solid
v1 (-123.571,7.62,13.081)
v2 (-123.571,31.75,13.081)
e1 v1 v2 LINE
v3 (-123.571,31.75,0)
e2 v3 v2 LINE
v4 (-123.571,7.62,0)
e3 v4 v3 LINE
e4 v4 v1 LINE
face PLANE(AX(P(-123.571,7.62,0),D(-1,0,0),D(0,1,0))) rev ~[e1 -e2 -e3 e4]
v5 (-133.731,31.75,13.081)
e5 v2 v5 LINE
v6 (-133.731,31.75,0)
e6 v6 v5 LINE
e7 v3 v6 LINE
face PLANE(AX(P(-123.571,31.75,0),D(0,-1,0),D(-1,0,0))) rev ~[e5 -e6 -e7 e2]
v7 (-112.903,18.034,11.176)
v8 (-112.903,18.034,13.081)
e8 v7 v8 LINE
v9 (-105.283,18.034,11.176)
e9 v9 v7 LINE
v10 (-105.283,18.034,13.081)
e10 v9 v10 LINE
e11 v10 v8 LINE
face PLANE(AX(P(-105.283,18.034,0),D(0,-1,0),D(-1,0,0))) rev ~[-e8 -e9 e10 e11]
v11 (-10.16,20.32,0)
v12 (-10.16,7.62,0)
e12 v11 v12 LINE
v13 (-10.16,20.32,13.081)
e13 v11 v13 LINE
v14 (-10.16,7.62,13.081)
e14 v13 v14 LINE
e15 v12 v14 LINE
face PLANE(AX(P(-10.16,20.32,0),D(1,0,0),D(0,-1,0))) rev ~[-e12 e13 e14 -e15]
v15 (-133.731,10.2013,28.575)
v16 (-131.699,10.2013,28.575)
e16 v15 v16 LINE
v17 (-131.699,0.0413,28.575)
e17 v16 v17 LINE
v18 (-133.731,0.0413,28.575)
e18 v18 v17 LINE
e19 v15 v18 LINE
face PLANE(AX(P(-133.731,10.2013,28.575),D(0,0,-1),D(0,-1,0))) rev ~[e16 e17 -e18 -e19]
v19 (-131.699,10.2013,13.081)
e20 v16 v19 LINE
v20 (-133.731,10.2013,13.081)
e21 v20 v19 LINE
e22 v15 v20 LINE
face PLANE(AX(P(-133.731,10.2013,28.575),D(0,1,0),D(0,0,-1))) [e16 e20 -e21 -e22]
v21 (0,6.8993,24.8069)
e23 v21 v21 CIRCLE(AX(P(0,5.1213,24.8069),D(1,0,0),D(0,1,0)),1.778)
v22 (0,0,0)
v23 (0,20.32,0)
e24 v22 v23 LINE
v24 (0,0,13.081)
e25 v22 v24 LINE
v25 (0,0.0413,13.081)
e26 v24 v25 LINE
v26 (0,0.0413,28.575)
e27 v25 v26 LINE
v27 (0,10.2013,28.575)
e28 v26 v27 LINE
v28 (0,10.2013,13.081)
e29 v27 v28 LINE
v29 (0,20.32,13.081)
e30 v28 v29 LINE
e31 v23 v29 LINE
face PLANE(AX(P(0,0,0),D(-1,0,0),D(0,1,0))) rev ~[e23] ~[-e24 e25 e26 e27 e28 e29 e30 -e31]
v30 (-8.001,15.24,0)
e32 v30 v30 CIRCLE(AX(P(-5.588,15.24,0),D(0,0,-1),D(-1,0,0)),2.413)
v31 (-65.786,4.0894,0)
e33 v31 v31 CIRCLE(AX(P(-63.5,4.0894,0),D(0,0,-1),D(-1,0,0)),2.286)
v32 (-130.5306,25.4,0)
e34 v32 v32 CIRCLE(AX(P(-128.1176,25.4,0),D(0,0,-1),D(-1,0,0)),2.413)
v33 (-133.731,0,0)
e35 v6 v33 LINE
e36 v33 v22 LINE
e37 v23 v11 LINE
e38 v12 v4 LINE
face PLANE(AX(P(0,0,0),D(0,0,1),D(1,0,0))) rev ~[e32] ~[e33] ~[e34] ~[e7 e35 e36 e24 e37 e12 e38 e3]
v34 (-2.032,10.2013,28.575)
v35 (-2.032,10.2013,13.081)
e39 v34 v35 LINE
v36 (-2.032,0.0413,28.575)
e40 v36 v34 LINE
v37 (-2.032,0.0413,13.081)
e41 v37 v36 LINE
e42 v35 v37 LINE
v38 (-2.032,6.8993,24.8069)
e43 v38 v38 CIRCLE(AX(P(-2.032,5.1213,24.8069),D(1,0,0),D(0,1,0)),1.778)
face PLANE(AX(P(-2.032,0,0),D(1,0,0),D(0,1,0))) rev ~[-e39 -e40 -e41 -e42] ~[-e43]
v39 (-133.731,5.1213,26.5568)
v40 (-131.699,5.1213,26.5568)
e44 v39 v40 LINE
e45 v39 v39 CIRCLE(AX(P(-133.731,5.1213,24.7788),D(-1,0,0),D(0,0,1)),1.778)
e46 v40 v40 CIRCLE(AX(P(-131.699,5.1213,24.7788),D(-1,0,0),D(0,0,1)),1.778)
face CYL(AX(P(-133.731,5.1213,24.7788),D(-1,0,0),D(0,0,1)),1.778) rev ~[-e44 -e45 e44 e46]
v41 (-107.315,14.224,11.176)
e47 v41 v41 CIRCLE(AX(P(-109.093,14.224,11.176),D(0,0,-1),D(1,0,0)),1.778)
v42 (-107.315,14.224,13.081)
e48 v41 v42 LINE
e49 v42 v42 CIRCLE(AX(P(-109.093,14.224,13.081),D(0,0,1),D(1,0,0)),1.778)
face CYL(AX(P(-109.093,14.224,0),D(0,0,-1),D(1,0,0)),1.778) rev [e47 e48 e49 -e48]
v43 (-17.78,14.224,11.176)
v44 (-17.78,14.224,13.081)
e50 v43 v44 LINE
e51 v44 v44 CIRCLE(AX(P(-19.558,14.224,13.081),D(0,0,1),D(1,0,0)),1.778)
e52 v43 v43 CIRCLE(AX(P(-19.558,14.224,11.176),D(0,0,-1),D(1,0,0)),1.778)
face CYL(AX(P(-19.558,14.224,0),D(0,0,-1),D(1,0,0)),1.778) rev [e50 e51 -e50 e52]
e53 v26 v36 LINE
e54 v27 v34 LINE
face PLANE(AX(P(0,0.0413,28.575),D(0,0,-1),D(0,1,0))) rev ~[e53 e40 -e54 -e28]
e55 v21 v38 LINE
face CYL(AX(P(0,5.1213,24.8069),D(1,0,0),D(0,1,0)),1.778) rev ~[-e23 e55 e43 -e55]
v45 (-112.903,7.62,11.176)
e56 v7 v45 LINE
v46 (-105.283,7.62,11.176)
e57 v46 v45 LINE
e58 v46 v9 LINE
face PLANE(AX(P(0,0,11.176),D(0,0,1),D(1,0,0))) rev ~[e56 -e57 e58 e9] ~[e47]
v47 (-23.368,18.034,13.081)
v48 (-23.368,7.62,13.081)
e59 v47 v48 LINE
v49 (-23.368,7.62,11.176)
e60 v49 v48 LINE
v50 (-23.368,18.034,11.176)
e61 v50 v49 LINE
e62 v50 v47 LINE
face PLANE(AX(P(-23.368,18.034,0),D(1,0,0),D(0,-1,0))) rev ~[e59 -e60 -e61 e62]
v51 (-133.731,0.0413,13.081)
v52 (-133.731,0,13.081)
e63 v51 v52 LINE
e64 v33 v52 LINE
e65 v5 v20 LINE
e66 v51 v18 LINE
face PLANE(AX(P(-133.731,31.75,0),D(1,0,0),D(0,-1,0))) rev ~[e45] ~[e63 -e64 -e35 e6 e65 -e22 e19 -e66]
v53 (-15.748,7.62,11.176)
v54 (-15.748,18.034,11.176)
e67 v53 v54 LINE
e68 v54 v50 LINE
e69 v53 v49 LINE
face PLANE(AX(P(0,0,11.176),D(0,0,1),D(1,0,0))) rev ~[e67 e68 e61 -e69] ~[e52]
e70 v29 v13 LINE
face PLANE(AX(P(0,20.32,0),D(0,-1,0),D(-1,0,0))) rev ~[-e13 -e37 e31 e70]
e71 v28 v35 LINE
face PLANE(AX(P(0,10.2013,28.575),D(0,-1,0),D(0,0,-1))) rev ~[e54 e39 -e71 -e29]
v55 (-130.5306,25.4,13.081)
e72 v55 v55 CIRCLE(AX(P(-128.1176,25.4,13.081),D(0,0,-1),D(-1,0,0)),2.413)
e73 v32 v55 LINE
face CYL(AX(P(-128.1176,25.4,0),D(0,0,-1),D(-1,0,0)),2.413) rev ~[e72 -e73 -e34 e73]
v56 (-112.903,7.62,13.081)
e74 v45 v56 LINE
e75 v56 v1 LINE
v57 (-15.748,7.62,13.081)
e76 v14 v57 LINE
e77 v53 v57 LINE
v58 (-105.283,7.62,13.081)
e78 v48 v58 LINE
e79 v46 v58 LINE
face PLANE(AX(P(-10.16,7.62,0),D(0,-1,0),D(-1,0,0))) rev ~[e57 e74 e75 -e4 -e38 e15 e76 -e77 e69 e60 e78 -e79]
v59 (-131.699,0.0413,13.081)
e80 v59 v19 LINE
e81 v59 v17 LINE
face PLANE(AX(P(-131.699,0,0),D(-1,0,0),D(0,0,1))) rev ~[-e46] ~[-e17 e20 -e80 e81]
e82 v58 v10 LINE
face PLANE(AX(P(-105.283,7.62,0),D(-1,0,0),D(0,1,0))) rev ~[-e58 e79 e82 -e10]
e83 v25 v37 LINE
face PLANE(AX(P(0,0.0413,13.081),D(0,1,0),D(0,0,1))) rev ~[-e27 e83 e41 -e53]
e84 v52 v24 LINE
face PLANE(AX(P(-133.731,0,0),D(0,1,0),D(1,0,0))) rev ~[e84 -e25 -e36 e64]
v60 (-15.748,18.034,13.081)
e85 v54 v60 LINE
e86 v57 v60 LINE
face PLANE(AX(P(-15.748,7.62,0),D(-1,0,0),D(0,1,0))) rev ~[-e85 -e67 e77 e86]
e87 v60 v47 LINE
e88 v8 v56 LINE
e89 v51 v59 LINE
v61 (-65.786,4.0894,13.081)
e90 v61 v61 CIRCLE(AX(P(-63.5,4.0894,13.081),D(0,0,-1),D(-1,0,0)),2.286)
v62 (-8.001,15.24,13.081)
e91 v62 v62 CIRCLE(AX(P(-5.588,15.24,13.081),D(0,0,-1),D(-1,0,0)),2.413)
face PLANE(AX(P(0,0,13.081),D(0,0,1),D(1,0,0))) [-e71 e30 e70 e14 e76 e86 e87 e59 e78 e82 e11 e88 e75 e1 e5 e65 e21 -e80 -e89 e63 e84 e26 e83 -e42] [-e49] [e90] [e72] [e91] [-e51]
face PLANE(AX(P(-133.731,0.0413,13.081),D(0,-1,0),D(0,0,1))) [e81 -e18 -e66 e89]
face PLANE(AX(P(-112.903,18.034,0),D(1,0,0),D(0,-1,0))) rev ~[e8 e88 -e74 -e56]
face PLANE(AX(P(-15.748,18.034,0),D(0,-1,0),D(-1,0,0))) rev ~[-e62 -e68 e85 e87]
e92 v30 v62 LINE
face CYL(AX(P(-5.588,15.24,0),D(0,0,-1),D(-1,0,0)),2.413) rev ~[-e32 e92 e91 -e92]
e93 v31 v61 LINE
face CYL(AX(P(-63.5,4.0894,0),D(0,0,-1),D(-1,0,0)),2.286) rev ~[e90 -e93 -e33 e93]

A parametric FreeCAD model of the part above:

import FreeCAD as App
import Part
import Sketcher
Q = App.Units.Quantity


def add_polygon(sketch, points):
    """Adds a closed chain of lines whose ends are joined by coincident constraints."""
    first, n = sketch.GeometryCount, len(points)
    for a, b in zip(points, points[1:] + points[:1]):
        sketch.addGeometry(Part.LineSegment(App.Vector(*a, 0), App.Vector(*b, 0)), False)
    for i in range(n):
        sketch.addConstraint(Sketcher.Constraint("Coincident", first + i, 2, first + (i + 1) % n, 1))

doc = App.newDocument("Part")
body = doc.addObject("PartDesign::Body", "Body")

# Sketch on XY plane
sketch1 = body.newObject("Sketcher::SketchObject", "Sketch")
sketch1.AttachmentSupport = (doc.getObject("XY_Plane"), [""])
sketch1.MapMode = "FlatFace"
add_polygon(sketch1, [(-10.2, 20.3), (-10.2, 7.6), (-15.7, 7.6), (-15.7, 18), (-23.4, 18), (-23.4, 7.6), (-105.3, 7.6), (-105.3, 18), (-112.9, 18), (-112.9, 7.6), (-123.6, 7.6), (-123.6, 31.8), (-133.7, 31.8), (-133.7, 0), (0, 0), (0, 20.3)])  # lines 0-15
sketch1.addGeometry(Part.Circle(App.Vector(-109.1, 14.2, 0), App.Vector(0, 0, 1), 1.8), False)  # 16
sketch1.addGeometry(Part.Circle(App.Vector(-19.6, 14.2, 0), App.Vector(0, 0, 1), 1.8), False)  # 17
sketch1.addConstraint([
    Sketcher.Constraint("Vertical", 0),
    Sketcher.Constraint("Horizontal", 1),
    Sketcher.Constraint("Vertical", 2),
    Sketcher.Constraint("Horizontal", 3),
    Sketcher.Constraint("Vertical", 4),
    Sketcher.Constraint("Horizontal", 5),
    Sketcher.Constraint("Vertical", 6),
    Sketcher.Constraint("Horizontal", 7),
    Sketcher.Constraint("Vertical", 8),
    Sketcher.Constraint("Horizontal", 9),
    Sketcher.Constraint("Vertical", 10),
    Sketcher.Constraint("Horizontal", 11),
    Sketcher.Constraint("Vertical", 12),
    Sketcher.Constraint("Horizontal", 13),
    Sketcher.Constraint("Vertical", 14),
    Sketcher.Constraint("Horizontal", 15),
    Sketcher.Constraint("Coincident", 13, 2, -1, 1),
    Sketcher.Constraint("Equal", 16, 17),
    Sketcher.Constraint("Horizontal", 16, 3, 17, 3),
    Sketcher.Constraint("Horizontal", 1, 2, 4, 2),
    Sketcher.Constraint("Horizontal", 3, 2, 6, 2),
    Sketcher.Constraint("Horizontal", 5, 2, 8, 2),
    Sketcher.Constraint("Equal", 3, 7),
    Sketcher.Constraint("Equal", 11, 15),
    Sketcher.Constraint("DistanceY", 14, 1, 14, 2, Q("0.8 in")),
    Sketcher.Constraint("Diameter", 16, Q("0.14 in")),
    Sketcher.Constraint("DistanceX", 3, 2, 3, 1, Q("0.3 in")),
    Sketcher.Constraint("DistanceX", 11, 2, 11, 1, Q("0.4 in")),
    Sketcher.Constraint("DistanceY", 0, 2, 0, 1, Q("0.5 in")),
    Sketcher.Constraint("DistanceX", 1, 2, 1, 1, Q("0.22 in")),
    Sketcher.Constraint("DistanceX", 9, 2, 9, 1, Q("0.42 in")),
    Sketcher.Constraint("DistanceY", 2, 1, 2, 2, Q("0.41 in")),
    Sketcher.Constraint("DistanceY", 10, 1, 10, 2, Q("0.95 in")),
    Sketcher.Constraint("DistanceX", 5, 2, 5, 1, Q("3.225 in")),
    Sketcher.Constraint("DistanceY", -1, 1, 16, 3, Q("0.56 in")),
    Sketcher.Constraint("DistanceX", 17, 3, -1, 1, Q("0.77 in")),
    Sketcher.Constraint("DistanceX", 16, 3, 5, 2, Q("0.15 in")),
])
pad1 = body.newObject("PartDesign::Pad", "Pad")
pad1.Profile = sketch1
pad1.Length = Q("0.515 in")

# Sketch on XY plane
sketch2 = body.newObject("Sketcher::SketchObject", "Sketch001")
sketch2.AttachmentSupport = (doc.getObject("XY_Plane"), [""])
sketch2.MapMode = "FlatFace"
add_polygon(sketch2, [(-118, 8), (-13, 8), (-13, 21), (-118, 21)])  # lines 0-3
sketch2.addConstraint([
    Sketcher.Constraint("Horizontal", 0),
    Sketcher.Constraint("Vertical", 1),
    Sketcher.Constraint("Horizontal", 2),
    Sketcher.Constraint("Vertical", 3),
    Sketcher.Constraint("DistanceY", -1, 1, 0, 2, Q("0.3 in")),
    Sketcher.Constraint("DistanceX", 0, 2, -1, 1, Q("0.51 in")),
    Sketcher.Constraint("DistanceX", 0, 1, 0, 2, Q("105.457 mm")),
    Sketcher.Constraint("DistanceY", 1, 1, 1, 2, Q("13.6927 mm")),
])
pocket1 = body.newObject("PartDesign::Pocket", "Pocket")
pocket1.Profile = sketch2
pocket1.Length = Q("0.44 in")
pocket1.Reversed = True

# Sketch on YZ plane
sketch3 = body.newObject("Sketcher::SketchObject", "Sketch002")
sketch3.AttachmentSupport = (doc.getObject("YZ_Plane"), [""])
sketch3.MapMode = "FlatFace"
add_polygon(sketch3, [(0, 13.1), (10.2, 13.1), (10.2, 28.6), (0, 28.6)])  # lines 0-3
sketch3.addGeometry(Part.Circle(App.Vector(5.1, 24.8, 0), App.Vector(0, 0, 1), 1.8), False)  # 4
sketch3.addConstraint([
    Sketcher.Constraint("Horizontal", 0),
    Sketcher.Constraint("Vertical", 1),
    Sketcher.Constraint("Horizontal", 2),
    Sketcher.Constraint("Vertical", 3),
    Sketcher.Constraint("Diameter", 4, Q("0.14 in")),
    Sketcher.Constraint("DistanceX", 0, 1, 0, 2, Q("0.4 in")),
    Sketcher.Constraint("DistanceY", 1, 1, 1, 2, Q("0.61 in")),
    Sketcher.Constraint("DistanceX", 4, 3, 0, 2, Q("0.2 in")),
    Sketcher.Constraint("DistanceY", -1, 1, 0, 2, Q("0.515 in")),
    Sketcher.Constraint("DistanceX", -1, 1, 4, 3, Q("5.1213 mm")),
    Sketcher.Constraint("DistanceY", -1, 1, 4, 3, Q("24.807 mm")),
])
pad2 = body.newObject("PartDesign::Pad", "Pad001")
pad2.Profile = sketch3
pad2.Length = Q("0.08 in")
pad2.Reversed = True

# Sketch on YZ plane
sketch4 = body.newObject("Sketcher::SketchObject", "Sketch003")
sketch4.AttachmentSupport = (doc.getObject("YZ_Plane"), [""])
sketch4.MapMode = "FlatFace"
sketch4.AttachmentOffset = App.Placement(App.Vector(0, 0, -5.265 * 25.4), App.Rotation())
add_polygon(sketch4, [(0, 28.6), (10.2, 28.6), (10.2, 13.1), (0, 13.1)])  # lines 0-3
sketch4.addGeometry(Part.Circle(App.Vector(5.1, 24.8, 0), App.Vector(0, 0, 1), 1.8), False)  # 4
sketch4.addConstraint([
    Sketcher.Constraint("Horizontal", 0),
    Sketcher.Constraint("Vertical", 1),
    Sketcher.Constraint("Horizontal", 2),
    Sketcher.Constraint("Vertical", 3),
    Sketcher.Constraint("Diameter", 4, Q("0.14 in")),
    Sketcher.Constraint("DistanceX", 0, 1, 0, 2, Q("0.4 in")),
    Sketcher.Constraint("DistanceY", 1, 2, 1, 1, Q("0.61 in")),
    Sketcher.Constraint("DistanceX", 4, 3, 0, 2, Q("0.2 in")),
    Sketcher.Constraint("DistanceY", -1, 1, 0, 2, Q("1.125 in")),
    Sketcher.Constraint("DistanceX", -1, 1, 4, 3, Q("5.1213 mm")),
    Sketcher.Constraint("DistanceY", -1, 1, 4, 3, Q("24.7788 mm")),
])
pad3 = body.newObject("PartDesign::Pad", "Pad002")
pad3.Profile = sketch4
pad3.Length = Q("0.08 in")

# Sketch on XY plane
sketch5 = body.newObject("Sketcher::SketchObject", "Sketch004")
sketch5.AttachmentSupport = (doc.getObject("XY_Plane"), [""])
sketch5.MapMode = "FlatFace"
sketch5.addGeometry([
    Part.Circle(App.Vector(-5.6, 15.2, 0), App.Vector(0, 0, 1), 2.4),
    Part.Circle(App.Vector(-63.5, 4.1, 0), App.Vector(0, 0, 1), 2.3),
    Part.Circle(App.Vector(-128.1, 25.4, 0), App.Vector(0, 0, 1), 2.4),
], False)
sketch5.addConstraint([
    Sketcher.Constraint("Equal", 0, 2),
    Sketcher.Constraint("Diameter", 0, Q("0.19 in")),
    Sketcher.Constraint("Diameter", 1, Q("0.18 in")),
    Sketcher.Constraint("DistanceY", -1, 1, 2, 3, Q("1 in")),
    Sketcher.Constraint("DistanceY", -1, 1, 0, 3, Q("0.6 in")),
    Sketcher.Constraint("DistanceX", 1, 3, -1, 1, Q("2.5 in")),
    Sketcher.Constraint("DistanceX", 0, 3, -1, 1, Q("0.22 in")),
    Sketcher.Constraint("DistanceY", -1, 1, 1, 3, Q("0.161 in")),
    Sketcher.Constraint("DistanceX", 2, 3, -1, 1, Q("5.044 in")),
])
pocket2 = body.newObject("PartDesign::Pocket", "Pocket001")
pocket2.Profile = sketch5
pocket2.Length = Q("0.6 in")
pocket2.Reversed = True

doc.recompute()
